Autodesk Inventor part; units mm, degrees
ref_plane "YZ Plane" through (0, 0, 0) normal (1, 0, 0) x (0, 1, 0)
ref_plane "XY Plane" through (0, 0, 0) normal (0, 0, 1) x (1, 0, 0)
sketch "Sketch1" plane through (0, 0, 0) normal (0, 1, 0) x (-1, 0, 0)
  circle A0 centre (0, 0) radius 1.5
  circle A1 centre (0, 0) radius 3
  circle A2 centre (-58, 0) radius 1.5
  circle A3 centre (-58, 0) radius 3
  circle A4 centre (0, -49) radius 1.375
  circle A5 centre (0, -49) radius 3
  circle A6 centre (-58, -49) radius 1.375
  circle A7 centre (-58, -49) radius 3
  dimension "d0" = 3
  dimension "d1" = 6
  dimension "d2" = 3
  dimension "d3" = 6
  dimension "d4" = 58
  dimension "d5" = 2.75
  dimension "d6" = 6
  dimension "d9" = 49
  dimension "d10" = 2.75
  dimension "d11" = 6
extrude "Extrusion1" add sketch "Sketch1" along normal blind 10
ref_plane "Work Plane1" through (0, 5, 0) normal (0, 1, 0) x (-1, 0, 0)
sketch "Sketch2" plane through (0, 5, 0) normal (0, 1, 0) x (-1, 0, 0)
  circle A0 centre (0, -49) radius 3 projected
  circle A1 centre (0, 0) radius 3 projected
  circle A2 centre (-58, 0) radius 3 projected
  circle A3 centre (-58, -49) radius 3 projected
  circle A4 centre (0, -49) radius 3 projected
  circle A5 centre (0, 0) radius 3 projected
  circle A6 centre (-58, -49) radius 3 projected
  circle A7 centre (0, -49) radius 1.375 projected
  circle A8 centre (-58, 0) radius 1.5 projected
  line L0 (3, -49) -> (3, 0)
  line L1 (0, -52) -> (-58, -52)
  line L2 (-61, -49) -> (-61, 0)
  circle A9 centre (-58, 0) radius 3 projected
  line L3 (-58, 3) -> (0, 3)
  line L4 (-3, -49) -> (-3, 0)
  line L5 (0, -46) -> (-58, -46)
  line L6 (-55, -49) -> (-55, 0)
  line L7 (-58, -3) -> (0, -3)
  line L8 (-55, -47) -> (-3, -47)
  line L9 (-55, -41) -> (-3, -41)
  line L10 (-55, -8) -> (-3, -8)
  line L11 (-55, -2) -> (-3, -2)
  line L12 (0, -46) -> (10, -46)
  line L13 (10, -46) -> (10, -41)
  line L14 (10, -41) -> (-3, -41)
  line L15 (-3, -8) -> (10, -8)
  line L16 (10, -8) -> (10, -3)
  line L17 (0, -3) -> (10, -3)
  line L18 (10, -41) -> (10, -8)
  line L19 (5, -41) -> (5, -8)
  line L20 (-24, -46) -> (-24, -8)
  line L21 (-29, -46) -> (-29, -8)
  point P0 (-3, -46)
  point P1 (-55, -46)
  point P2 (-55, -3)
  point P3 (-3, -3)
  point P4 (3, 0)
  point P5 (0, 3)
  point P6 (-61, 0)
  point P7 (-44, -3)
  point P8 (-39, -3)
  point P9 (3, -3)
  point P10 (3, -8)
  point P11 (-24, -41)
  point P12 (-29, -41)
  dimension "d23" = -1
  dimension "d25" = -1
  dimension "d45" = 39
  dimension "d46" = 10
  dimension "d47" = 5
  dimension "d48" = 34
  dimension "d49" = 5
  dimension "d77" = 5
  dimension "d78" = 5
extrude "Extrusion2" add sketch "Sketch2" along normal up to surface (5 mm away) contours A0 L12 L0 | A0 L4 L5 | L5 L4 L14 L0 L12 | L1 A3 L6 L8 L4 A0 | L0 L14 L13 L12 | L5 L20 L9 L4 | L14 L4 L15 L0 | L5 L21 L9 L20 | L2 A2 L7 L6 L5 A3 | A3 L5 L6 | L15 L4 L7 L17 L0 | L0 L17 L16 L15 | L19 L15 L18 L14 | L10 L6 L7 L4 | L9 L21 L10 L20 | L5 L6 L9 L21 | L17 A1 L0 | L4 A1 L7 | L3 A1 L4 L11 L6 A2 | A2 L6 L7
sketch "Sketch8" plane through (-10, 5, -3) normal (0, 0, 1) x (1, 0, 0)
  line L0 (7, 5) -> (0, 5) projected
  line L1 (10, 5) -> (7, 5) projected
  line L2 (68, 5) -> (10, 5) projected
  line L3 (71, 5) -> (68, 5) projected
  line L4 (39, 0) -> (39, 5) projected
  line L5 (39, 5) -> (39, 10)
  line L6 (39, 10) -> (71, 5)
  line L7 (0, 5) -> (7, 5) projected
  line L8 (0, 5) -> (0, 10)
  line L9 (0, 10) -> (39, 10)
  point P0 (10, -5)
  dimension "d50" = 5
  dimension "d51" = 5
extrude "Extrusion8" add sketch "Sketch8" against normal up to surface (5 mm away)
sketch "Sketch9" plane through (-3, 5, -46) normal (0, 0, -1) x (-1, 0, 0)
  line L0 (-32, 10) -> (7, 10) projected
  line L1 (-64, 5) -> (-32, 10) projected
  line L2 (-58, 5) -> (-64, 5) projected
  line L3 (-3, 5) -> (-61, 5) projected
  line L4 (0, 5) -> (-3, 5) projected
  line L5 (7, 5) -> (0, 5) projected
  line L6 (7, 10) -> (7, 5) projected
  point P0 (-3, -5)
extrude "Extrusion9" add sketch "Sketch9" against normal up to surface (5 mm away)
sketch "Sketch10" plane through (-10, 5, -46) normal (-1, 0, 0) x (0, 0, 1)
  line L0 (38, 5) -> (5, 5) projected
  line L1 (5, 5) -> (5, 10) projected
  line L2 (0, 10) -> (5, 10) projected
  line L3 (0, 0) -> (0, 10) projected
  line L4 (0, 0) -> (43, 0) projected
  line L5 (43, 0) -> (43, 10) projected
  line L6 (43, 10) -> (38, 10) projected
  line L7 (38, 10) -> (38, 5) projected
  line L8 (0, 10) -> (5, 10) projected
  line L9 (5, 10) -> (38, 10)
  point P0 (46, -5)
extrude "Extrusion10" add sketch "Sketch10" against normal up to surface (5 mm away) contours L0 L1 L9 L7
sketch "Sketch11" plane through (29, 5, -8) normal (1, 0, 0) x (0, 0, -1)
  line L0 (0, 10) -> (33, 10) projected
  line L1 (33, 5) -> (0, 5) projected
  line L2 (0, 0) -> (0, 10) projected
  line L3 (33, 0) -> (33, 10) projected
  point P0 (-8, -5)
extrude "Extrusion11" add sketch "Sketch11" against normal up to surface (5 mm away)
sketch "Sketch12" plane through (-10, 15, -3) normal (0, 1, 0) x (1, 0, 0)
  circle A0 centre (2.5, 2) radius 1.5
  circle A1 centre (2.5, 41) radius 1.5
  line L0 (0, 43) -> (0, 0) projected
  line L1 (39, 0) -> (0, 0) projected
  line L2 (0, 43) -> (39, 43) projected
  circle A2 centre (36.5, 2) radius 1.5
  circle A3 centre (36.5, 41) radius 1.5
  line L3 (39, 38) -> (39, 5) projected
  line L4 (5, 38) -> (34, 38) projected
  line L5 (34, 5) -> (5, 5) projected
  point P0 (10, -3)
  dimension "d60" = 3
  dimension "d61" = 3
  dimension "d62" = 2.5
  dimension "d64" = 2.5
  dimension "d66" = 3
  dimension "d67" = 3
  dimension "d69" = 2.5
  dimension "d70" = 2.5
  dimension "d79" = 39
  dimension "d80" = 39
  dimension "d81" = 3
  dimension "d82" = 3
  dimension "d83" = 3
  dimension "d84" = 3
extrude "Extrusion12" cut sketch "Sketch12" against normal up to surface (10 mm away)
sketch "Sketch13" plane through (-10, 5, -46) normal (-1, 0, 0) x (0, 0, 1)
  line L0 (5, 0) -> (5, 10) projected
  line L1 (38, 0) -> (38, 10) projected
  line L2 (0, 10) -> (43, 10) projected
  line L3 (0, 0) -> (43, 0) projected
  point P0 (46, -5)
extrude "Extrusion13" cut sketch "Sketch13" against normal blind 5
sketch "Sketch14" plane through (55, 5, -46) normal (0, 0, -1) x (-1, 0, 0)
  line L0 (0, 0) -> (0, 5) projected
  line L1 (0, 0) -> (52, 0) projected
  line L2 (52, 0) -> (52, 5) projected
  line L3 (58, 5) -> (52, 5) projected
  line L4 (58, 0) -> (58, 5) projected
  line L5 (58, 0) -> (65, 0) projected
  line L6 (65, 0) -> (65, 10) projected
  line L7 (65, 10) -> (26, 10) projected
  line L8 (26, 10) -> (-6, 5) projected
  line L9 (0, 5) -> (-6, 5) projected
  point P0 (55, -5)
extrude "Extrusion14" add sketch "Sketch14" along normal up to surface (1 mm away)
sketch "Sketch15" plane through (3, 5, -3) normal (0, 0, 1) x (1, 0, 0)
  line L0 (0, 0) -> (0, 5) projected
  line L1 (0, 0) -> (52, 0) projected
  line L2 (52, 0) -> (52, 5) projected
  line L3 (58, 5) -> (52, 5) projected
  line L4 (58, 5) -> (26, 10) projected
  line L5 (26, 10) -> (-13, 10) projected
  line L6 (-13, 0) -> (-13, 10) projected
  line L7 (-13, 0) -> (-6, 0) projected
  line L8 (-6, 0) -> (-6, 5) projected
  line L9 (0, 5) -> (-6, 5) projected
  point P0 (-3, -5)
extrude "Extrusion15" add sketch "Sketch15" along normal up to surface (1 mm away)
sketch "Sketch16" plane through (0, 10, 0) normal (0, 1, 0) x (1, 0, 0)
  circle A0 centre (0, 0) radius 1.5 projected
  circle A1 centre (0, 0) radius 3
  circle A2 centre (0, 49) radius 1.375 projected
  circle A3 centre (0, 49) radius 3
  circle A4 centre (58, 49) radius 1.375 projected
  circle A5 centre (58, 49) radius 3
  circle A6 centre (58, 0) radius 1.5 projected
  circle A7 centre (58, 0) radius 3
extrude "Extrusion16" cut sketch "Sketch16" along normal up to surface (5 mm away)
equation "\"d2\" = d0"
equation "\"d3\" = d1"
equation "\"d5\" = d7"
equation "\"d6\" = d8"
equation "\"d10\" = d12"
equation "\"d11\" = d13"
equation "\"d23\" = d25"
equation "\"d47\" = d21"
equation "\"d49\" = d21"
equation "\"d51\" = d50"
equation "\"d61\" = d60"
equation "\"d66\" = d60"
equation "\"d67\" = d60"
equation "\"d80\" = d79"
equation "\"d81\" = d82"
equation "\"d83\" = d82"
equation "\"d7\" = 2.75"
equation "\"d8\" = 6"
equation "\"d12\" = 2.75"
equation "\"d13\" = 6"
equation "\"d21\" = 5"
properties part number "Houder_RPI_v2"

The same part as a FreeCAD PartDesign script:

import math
import FreeCAD as App
import Part
import Sketcher

V = App.Vector


def add_polygon(sketch, points):
    """Adds a closed chain of lines whose ends are joined by coincident constraints."""
    first, n = sketch.GeometryCount, len(points)
    for a, b in zip(points, points[1:] + points[:1]):
        sketch.addGeometry(Part.LineSegment(App.Vector(*a, 0), App.Vector(*b, 0)), False)
    for i in range(n):
        sketch.addConstraint(Sketcher.Constraint("Coincident", first + i, 2, first + (i + 1) % n, 1))

doc = App.newDocument("Part")
body = doc.addObject("PartDesign::Body", "Body")
body.AllowCompound = True

sketch1 = doc.addObject("Sketcher::SketchObject", "Sketch")
body.addObject(sketch1)
sketch1.AttachmentSupport = (doc.XZ_Plane, [""])
sketch1.MapMode = "FlatFace"
sketch1.addGeometry([
    Part.Circle(V(0, 0, 0), V(0, 0, 1), 3),
    Part.Circle(V(0, 0, 0), V(0, 0, 1), 1.5),
    Part.Circle(V(58, 0, 0), V(0, 0, 1), 3),
    Part.Circle(V(58, 0, 0), V(0, 0, 1), 1.5),
    Part.Circle(V(0, -49, 0), V(0, 0, 1), 3),
    Part.Circle(V(0, -49, 0), V(0, 0, 1), 1.4),
    Part.Circle(V(58, -49, 0), V(0, 0, 1), 3),
    Part.Circle(V(58, -49, 0), V(0, 0, 1), 1.4),
], False)
sketch1.addConstraint([
    Sketcher.Constraint("Coincident", 0, 3, -1, 1),
    Sketcher.Constraint("Coincident", 1, 3, -1, 1),
    Sketcher.Constraint("Coincident", 3, 3, 2, 3),
    Sketcher.Constraint("Coincident", 5, 3, 4, 3),
    Sketcher.Constraint("Coincident", 7, 3, 6, 3),
    Sketcher.Constraint("Equal", 0, 2),
    Sketcher.Constraint("Equal", 1, 3),
    Sketcher.Constraint("Equal", 2, 4),
    Sketcher.Constraint("Equal", 4, 6),
    Sketcher.Constraint("Equal", 5, 7),
    Sketcher.Constraint("PointOnObject", 2, 3, -1),
    Sketcher.Constraint("PointOnObject", 4, 3, -2),
    Sketcher.Constraint("Horizontal", 5, 3, 6, 3),
    Sketcher.Constraint("Vertical", 3, 3, 6, 3),
    Sketcher.Constraint("Diameter", 0, 6.0),
    Sketcher.Constraint("Diameter", 1, 3.0),
    Sketcher.Constraint("Diameter", 5, 2.75),
    Sketcher.Constraint("DistanceX", -1, 1, 2, 3, 58.0),
    Sketcher.Constraint("DistanceY", 4, 3, -1, 1, 49.0),
])
pad1 = doc.addObject("PartDesign::Pad", "Pad")
body.addObject(pad1)
pad1.Profile = sketch1
pad1.Length = 10
pad1.Reversed = True

sketch2 = doc.addObject("Sketcher::SketchObject", "Sketch001")
body.addObject(sketch2)
sketch2.AttachmentSupport = (doc.XZ_Plane, [""])
sketch2.MapMode = "FlatFace"
sketch2.AttachmentOffset = App.Placement(V(0, 0, -5), App.Rotation())
sketch2.addGeometry(Part.LineSegment(V(-3, -49, 0), V(-3, -46, 0)), False)
sketch2.addGeometry(Part.LineSegment(V(-3, -46, 0), V(-10, -46, 0)), False)
sketch2.addGeometry(Part.LineSegment(V(-10, -46, 0), V(-10, -3, 0)), False)
sketch2.addGeometry(Part.LineSegment(V(-10, -3, 0), V(-3, -3, 0)), False)
sketch2.addGeometry(Part.LineSegment(V(-3, -3, 0), V(-3, 0, 0)), False)
sketch2.addGeometry(Part.ArcOfCircle(Part.Circle(V(0, 0, 0), V(0, 0, 1), 3), math.radians(180), math.radians(450)), False)
sketch2.addGeometry(Part.LineSegment(V(0, 3, 0), V(58, 3, 0)), False)
sketch2.addGeometry(Part.ArcOfCircle(Part.Circle(V(58, 0, 0), V(0, 0, 1), 3), math.radians(90), math.radians(360)), False)
sketch2.addGeometry(Part.LineSegment(V(61, 0, 0), V(61, -49, 0)), False)
sketch2.addGeometry(Part.ArcOfCircle(Part.Circle(V(58, -49, 0), V(0, 0, 1), 3), math.radians(0), math.radians(270)), False)
sketch2.addGeometry(Part.LineSegment(V(58, -52, 0), V(0, -52, 0)), False)
sketch2.addGeometry(Part.ArcOfCircle(Part.Circle(V(0, -49, 0), V(0, 0, 1), 3), math.radians(-90), math.radians(180)), False)
add_polygon(sketch2, [(3, -46), (3, -47), (55, -47), (55, -46)])
add_polygon(sketch2, [(3, -41), (24, -41), (24, -8), (3, -8)])
add_polygon(sketch2, [(-3, -41), (-3, -8), (-5, -8), (-5, -41)])
add_polygon(sketch2, [(29, -41), (55, -41), (55, -8), (29, -8)])
add_polygon(sketch2, [(3, -3), (55, -3), (55, -2), (3, -2)])
sketch2.addConstraint([
    Sketcher.Constraint("Coincident", 0, 2, 1, 1),
    Sketcher.Constraint("Coincident", 1, 2, 2, 1),
    Sketcher.Constraint("Coincident", 2, 2, 3, 1),
    Sketcher.Constraint("Coincident", 3, 2, 4, 1),
    Sketcher.Constraint("Tangent", 4, 2, 5, 1),
    Sketcher.Constraint("Tangent", 5, 2, 6, 1),
    Sketcher.Constraint("Tangent", 6, 2, 7, 1),
    Sketcher.Constraint("Tangent", 7, 2, 8, 1),
    Sketcher.Constraint("Tangent", 8, 2, 9, 1),
    Sketcher.Constraint("Tangent", 9, 2, 10, 1),
    Sketcher.Constraint("Tangent", 10, 2, 11, 1),
    Sketcher.Constraint("Tangent", 11, 2, 0, 1),
    Sketcher.Constraint("Vertical", 0),
    Sketcher.Constraint("Horizontal", 1),
    Sketcher.Constraint("Vertical", 2),
    Sketcher.Constraint("Horizontal", 3),
    Sketcher.Constraint("Vertical", 4),
    Sketcher.Constraint("Horizontal", 6),
    Sketcher.Constraint("Vertical", 8),
    Sketcher.Constraint("Horizontal", 10),
    Sketcher.Constraint("Vertical", 12),
    Sketcher.Constraint("Horizontal", 13),
    Sketcher.Constraint("Vertical", 14),
    Sketcher.Constraint("Horizontal", 15),
    Sketcher.Constraint("Horizontal", 16),
    Sketcher.Constraint("Vertical", 17),
    Sketcher.Constraint("Horizontal", 18),
    Sketcher.Constraint("Vertical", 19),
    Sketcher.Constraint("Vertical", 20),
    Sketcher.Constraint("Horizontal", 21),
    Sketcher.Constraint("Vertical", 22),
    Sketcher.Constraint("Horizontal", 23),
    Sketcher.Constraint("Horizontal", 24),
    Sketcher.Constraint("Vertical", 25),
    Sketcher.Constraint("Horizontal", 26),
    Sketcher.Constraint("Vertical", 27),
    Sketcher.Constraint("Horizontal", 28),
    Sketcher.Constraint("Vertical", 29),
    Sketcher.Constraint("Horizontal", 30),
    Sketcher.Constraint("Vertical", 31),
    Sketcher.Constraint("Coincident", 5, 3, -1, 1),
    Sketcher.Constraint("Equal", 5, 7),
    Sketcher.Constraint("Equal", 7, 9),
    Sketcher.Constraint("Equal", 9, 11),
    Sketcher.Constraint("Symmetric", 0, 2, 15, 2, -2),
    Sketcher.Constraint("Symmetric", 18, 2, 20, 2, -2),
    Sketcher.Constraint("Symmetric", 3, 2, 31, 2, -2),
    Sketcher.Constraint("PointOnObject", 11, 3, -2),
    Sketcher.Constraint("Horizontal", 19, 2, 22, 2),
    Sketcher.Constraint("Horizontal", 23, 2, 24, 2),
    Sketcher.Constraint("Horizontal", 21, 2, 25, 2),
    Sketcher.Constraint("Vertical", 15, 2, 18, 2),
    Sketcher.Constraint("Vertical", 14, 2, 24, 2),
    Sketcher.Constraint("Vertical", 25, 2, 28, 2),
    Sketcher.Constraint("Equal", 0, 4),
    Sketcher.Constraint("Equal", 14, 29),
    Sketcher.Constraint("DistanceY", 12, 2, 12, 1, 1.0),
    Sketcher.Constraint("DistanceX", 1, 2, -1, 1, 10.0),
    Sketcher.Constraint("DistanceX", 21, 2, -1, 1, 5.0),
    Sketcher.Constraint("Radius", 5, 3.0),
    Sketcher.Constraint("DistanceY", 10, 2, 12, 2, 5.0),
    Sketcher.Constraint("DistanceY", 15, 2, 16, 2, 5.0),
    Sketcher.Constraint("DistanceY", 17, 2, 3, 2, 5.0),
    Sketcher.Constraint("DistanceX", 17, 2, 26, 2, 5.0),
    Sketcher.Constraint("DistanceX", 6, 1, 6, 2, 58.0),
    Sketcher.Constraint("DistanceX", 13, 1, 13, 2, 52.0),
    Sketcher.Constraint("DistanceX", 16, 1, 16, 2, 21.0),
    Sketcher.Constraint("DistanceY", 2, 1, 2, 2, 43.0),
])
pad2 = doc.addObject("PartDesign::Pad", "Pad001")
body.addObject(pad2)
pad2.Profile = sketch2
pad2.Length = 5
pad2.Reversed = True

sketch3 = doc.addObject("Sketcher::SketchObject", "Sketch002")
body.addObject(sketch3)
sketch3.AttachmentSupport = (doc.XY_Plane, [""])
sketch3.MapMode = "FlatFace"
sketch3.AttachmentOffset = App.Placement(V(0, 0, -3), App.Rotation())
add_polygon(sketch3, [(-10, 10), (61, 10), (29, 15), (-10, 15)])
sketch3.addConstraint([
    Sketcher.Constraint("Horizontal", 0),
    Sketcher.Constraint("Horizontal", 2),
    Sketcher.Constraint("Vertical", 3),
    Sketcher.Constraint("DistanceY", 3, 2, 3, 1, 5.0),
    Sketcher.Constraint("DistanceX", 0, 1, 0, 2, 71.0),
    Sketcher.Constraint("DistanceX", 2, 2, 2, 1, 39.0),
    Sketcher.Constraint("DistanceX", -1, 1, 0, 2, 61.0),
    Sketcher.Constraint("DistanceY", -1, 1, 0, 2, 10.0),
])
pad3 = doc.addObject("PartDesign::Pad", "Pad002")
body.addObject(pad3)
pad3.Profile = sketch3
pad3.Length = 5
pad3.Reversed = True

sketch4 = doc.addObject("Sketcher::SketchObject", "Sketch003")
body.addObject(sketch4)
sketch4.AttachmentSupport = (doc.XY_Plane, [""])
sketch4.MapMode = "FlatFace"
sketch4.AttachmentOffset = App.Placement(V(0, 0, -46), App.Rotation())
add_polygon(sketch4, [(-10, 15), (29, 15), (61, 10), (-10, 10)])
sketch4.addConstraint([
    Sketcher.Constraint("Horizontal", 0),
    Sketcher.Constraint("Horizontal", 2),
    Sketcher.Constraint("Vertical", 3),
    Sketcher.Constraint("DistanceX", 0, 1, 0, 2, 39.0),
    Sketcher.Constraint("DistanceX", 2, 2, 2, 1, 71.0),
    Sketcher.Constraint("DistanceY", 3, 1, 3, 2, 5.0),
    Sketcher.Constraint("DistanceX", -1, 1, 0, 2, 29.0),
    Sketcher.Constraint("DistanceY", -1, 1, 0, 2, 15.0),
])
pad4 = doc.addObject("PartDesign::Pad", "Pad003")
body.addObject(pad4)
pad4.Profile = sketch4
pad4.Length = 5

sketch5 = doc.addObject("Sketcher::SketchObject", "Sketch004")
body.addObject(sketch5)
sketch5.AttachmentSupport = (doc.YZ_Plane, [""])
sketch5.MapMode = "FlatFace"
sketch5.AttachmentOffset = App.Placement(V(0, 0, -10), App.Rotation())
add_polygon(sketch5, [(10, -41), (10, -8), (15, -8), (15, -41)])
sketch5.addConstraint([
    Sketcher.Constraint("Vertical", 0),
    Sketcher.Constraint("Horizontal", 1),
    Sketcher.Constraint("Vertical", 2),
    Sketcher.Constraint("Horizontal", 3),
    Sketcher.Constraint("DistanceX", 1, 1, 1, 2, 5.0),
    Sketcher.Constraint("DistanceY", 0, 1, 0, 2, 33.0),
    Sketcher.Constraint("DistanceX", -1, 1, 0, 2, 10.0),
    Sketcher.Constraint("DistanceY", 0, 2, -1, 1, 8.0),
])
pad5 = doc.addObject("PartDesign::Pad", "Pad004")
body.addObject(pad5)
pad5.Profile = sketch5
pad5.Length = 5

sketch6 = doc.addObject("Sketcher::SketchObject", "Sketch005")
body.addObject(sketch6)
sketch6.AttachmentSupport = (doc.YZ_Plane, [""])
sketch6.MapMode = "FlatFace"
sketch6.AttachmentOffset = App.Placement(V(0, 0, 29), App.Rotation())
add_polygon(sketch6, [(15, -41), (15, -8), (10, -8), (10, -41)])
sketch6.addConstraint([
    Sketcher.Constraint("Vertical", 0),
    Sketcher.Constraint("Horizontal", 1),
    Sketcher.Constraint("Vertical", 2),
    Sketcher.Constraint("Horizontal", 3),
    Sketcher.Constraint("DistanceX", 1, 2, 1, 1, 5.0),
    Sketcher.Constraint("DistanceY", 0, 1, 0, 2, 33.0),
    Sketcher.Constraint("DistanceX", -1, 1, 0, 2, 15.0),
    Sketcher.Constraint("DistanceY", 0, 2, -1, 1, 8.0),
])
pad6 = doc.addObject("PartDesign::Pad", "Pad005")
body.addObject(pad6)
pad6.Profile = sketch6
pad6.Length = 5
pad6.Reversed = True

sketch7 = doc.addObject("Sketcher::SketchObject", "Sketch006")
body.addObject(sketch7)
sketch7.AttachmentSupport = (doc.XZ_Plane, [""])
sketch7.MapMode = "FlatFace"
sketch7.AttachmentOffset = App.Placement(V(0, 0, -15), App.Rotation())
sketch7.addGeometry([
    Part.Circle(V(-7.5, -5, 0), V(0, 0, 1), 1.5),
    Part.Circle(V(-7.5, -44, 0), V(0, 0, 1), 1.5),
    Part.Circle(V(26.5, -5, 0), V(0, 0, 1), 1.5),
    Part.Circle(V(26.5, -44, 0), V(0, 0, 1), 1.5),
], False)
sketch7.addConstraint([
    Sketcher.Constraint("Equal", 0, 1),
    Sketcher.Constraint("Equal", 1, 2),
    Sketcher.Constraint("Equal", 2, 3),
    Sketcher.Constraint("Horizontal", 0, 3, 2, 3),
    Sketcher.Constraint("Horizontal", 1, 3, 3, 3),
    Sketcher.Constraint("Vertical", 0, 3, 1, 3),
    Sketcher.Constraint("Vertical", 2, 3, 3, 3),
    Sketcher.Constraint("Diameter", 0, 3.0),
    Sketcher.Constraint("DistanceY", 1, 3, 0, 3, 39.0),
    Sketcher.Constraint("DistanceY", 0, 3, -1, 1, 5.0),
    Sketcher.Constraint("DistanceX", 0, 3, 2, 3, 34.0),
    Sketcher.Constraint("DistanceX", 0, 3, -1, 1, 7.5),
])
pocket1 = doc.addObject("PartDesign::Pocket", "Pocket")
body.addObject(pocket1)
pocket1.Profile = sketch7
pocket1.Length = 10
pocket1.Reversed = True

sketch8 = doc.addObject("Sketcher::SketchObject", "Sketch007")
body.addObject(sketch8)
sketch8.AttachmentSupport = (doc.YZ_Plane, [""])
sketch8.MapMode = "FlatFace"
sketch8.AttachmentOffset = App.Placement(V(0, 0, -10), App.Rotation())
add_polygon(sketch8, [(15, -41), (5, -41), (5, -8), (15, -8)])
sketch8.addConstraint([
    Sketcher.Constraint("Horizontal", 0),
    Sketcher.Constraint("Vertical", 1),
    Sketcher.Constraint("Horizontal", 2),
    Sketcher.Constraint("Vertical", 3),
    Sketcher.Constraint("DistanceX", 0, 2, 0, 1, 10.0),
    Sketcher.Constraint("DistanceY", 1, 1, 1, 2, 33.0),
    Sketcher.Constraint("DistanceX", -1, 1, 0, 2, 5.0),
    Sketcher.Constraint("DistanceY", 0, 2, -1, 1, 41.0),
])
pocket2 = doc.addObject("PartDesign::Pocket", "Pocket001")
body.addObject(pocket2)
pocket2.Profile = sketch8
pocket2.Length = 5
pocket2.Reversed = True

sketch9 = doc.addObject("Sketcher::SketchObject", "Sketch008")
body.addObject(sketch9)
sketch9.AttachmentSupport = (doc.XY_Plane, [""])
sketch9.MapMode = "FlatFace"
sketch9.AttachmentOffset = App.Placement(V(0, 0, -46), App.Rotation())
add_polygon(sketch9, [(55, 10), (55, 5), (3, 5), (3, 10), (-3, 10), (-3, 5), (-10, 5), (-10, 15), (29, 15), (61, 10)])
sketch9.addConstraint([
    Sketcher.Constraint("Vertical", 0),
    Sketcher.Constraint("Horizontal", 1),
    Sketcher.Constraint("Vertical", 2),
    Sketcher.Constraint("Horizontal", 3),
    Sketcher.Constraint("Vertical", 4),
    Sketcher.Constraint("Horizontal", 5),
    Sketcher.Constraint("Vertical", 6),
    Sketcher.Constraint("Horizontal", 7),
    Sketcher.Constraint("Horizontal", 9),
    Sketcher.Constraint("Symmetric", 1, 2, 4, 2, -2),
    Sketcher.Constraint("Horizontal", 3, 2, 8, 2),
    Sketcher.Constraint("Equal", 3, 9),
    Sketcher.Constraint("DistanceX", 1, 2, 1, 1, 52.0),
    Sketcher.Constraint("DistanceX", 3, 2, 3, 1, 6.0),
    Sketcher.Constraint("DistanceX", 5, 2, 5, 1, 7.0),
    Sketcher.Constraint("DistanceX", 7, 1, 7, 2, 39.0),
    Sketcher.Constraint("DistanceY", 0, 2, 0, 1, 5.0),
    Sketcher.Constraint("DistanceY", 6, 1, 6, 2, 10.0),
    Sketcher.Constraint("DistanceY", -1, 1, 0, 2, 5.0),
])
pad7 = doc.addObject("PartDesign::Pad", "Pad006")
body.addObject(pad7)
pad7.Profile = sketch9
pad7.Length = 1
pad7.Reversed = True

sketch10 = doc.addObject("Sketcher::SketchObject", "Sketch009")
body.addObject(sketch10)
sketch10.AttachmentSupport = (doc.XY_Plane, [""])
sketch10.MapMode = "FlatFace"
sketch10.AttachmentOffset = App.Placement(V(0, 0, -3), App.Rotation())
add_polygon(sketch10, [(3, 10), (3, 5), (55, 5), (55, 10), (61, 10), (29, 15), (-10, 15), (-10, 5), (-3, 5), (-3, 10)])
sketch10.addConstraint([
    Sketcher.Constraint("Vertical", 0),
    Sketcher.Constraint("Horizontal", 1),
    Sketcher.Constraint("Vertical", 2),
    Sketcher.Constraint("Horizontal", 3),
    Sketcher.Constraint("Horizontal", 5),
    Sketcher.Constraint("Vertical", 6),
    Sketcher.Constraint("Horizontal", 7),
    Sketcher.Constraint("Vertical", 8),
    Sketcher.Constraint("Horizontal", 9),
    Sketcher.Constraint("Symmetric", 0, 2, 7, 2, -2),
    Sketcher.Constraint("Horizontal", 3, 2, 8, 2),
    Sketcher.Constraint("Equal", 3, 9),
    Sketcher.Constraint("DistanceX", 1, 1, 1, 2, 52.0),
    Sketcher.Constraint("DistanceX", 3, 1, 3, 2, 6.0),
    Sketcher.Constraint("DistanceX", 5, 2, 5, 1, 39.0),
    Sketcher.Constraint("DistanceX", 7, 1, 7, 2, 7.0),
    Sketcher.Constraint("DistanceY", 0, 2, 0, 1, 5.0),
    Sketcher.Constraint("DistanceY", 6, 2, 6, 1, 10.0),
    Sketcher.Constraint("DistanceY", -1, 1, 0, 2, 5.0),
])
pad8 = doc.addObject("PartDesign::Pad", "Pad007")
body.addObject(pad8)
pad8.Profile = sketch10
pad8.Length = 1

sketch11 = doc.addObject("Sketcher::SketchObject", "Sketch010")
body.addObject(sketch11)
sketch11.AttachmentSupport = (doc.XZ_Plane, [""])
sketch11.MapMode = "FlatFace"
sketch11.AttachmentOffset = App.Placement(V(0, 0, -10), App.Rotation())
sketch11.addGeometry([
    Part.Circle(V(0, 0, 0), V(0, 0, 1), 3),
    Part.Circle(V(0, 0, 0), V(0, 0, 1), 1.5),
    Part.Circle(V(0, -49, 0), V(0, 0, 1), 3),
    Part.Circle(V(0, -49, 0), V(0, 0, 1), 1.4),
    Part.Circle(V(58, -49, 0), V(0, 0, 1), 3),
    Part.Circle(V(58, -49, 0), V(0, 0, 1), 1.4),
    Part.Circle(V(58, 0, 0), V(0, 0, 1), 3),
    Part.Circle(V(58, 0, 0), V(0, 0, 1), 1.5),
], False)
sketch11.addConstraint([
    Sketcher.Constraint("Coincident", 0, 3, -1, 1),
    Sketcher.Constraint("Coincident", 1, 3, -1, 1),
    Sketcher.Constraint("Coincident", 3, 3, 2, 3),
    Sketcher.Constraint("Coincident", 5, 3, 4, 3),
    Sketcher.Constraint("Coincident", 7, 3, 6, 3),
    Sketcher.Constraint("Equal", 0, 2),
    Sketcher.Constraint("Equal", 2, 4),
    Sketcher.Constraint("Equal", 3, 5),
    Sketcher.Constraint("Equal", 4, 6),
    Sketcher.Constraint("Equal", 1, 7),
    Sketcher.Constraint("PointOnObject", 2, 3, -2),
    Sketcher.Constraint("PointOnObject", 6, 3, -1),
    Sketcher.Constraint("Horizontal", 3, 3, 4, 3),
    Sketcher.Constraint("Vertical", 5, 3, 6, 3),
    Sketcher.Constraint("Diameter", 0, 6.0),
    Sketcher.Constraint("Diameter", 1, 3.0),
    Sketcher.Constraint("Diameter", 3, 2.75),
    Sketcher.Constraint("DistanceY", 2, 3, -1, 1, 49.0),
    Sketcher.Constraint("DistanceX", -1, 1, 4, 3, 58.0),
])
pocket3 = doc.addObject("PartDesign::Pocket", "Pocket002")
body.addObject(pocket3)
pocket3.Profile = sketch11
pocket3.Length = 5

doc.recompute()
